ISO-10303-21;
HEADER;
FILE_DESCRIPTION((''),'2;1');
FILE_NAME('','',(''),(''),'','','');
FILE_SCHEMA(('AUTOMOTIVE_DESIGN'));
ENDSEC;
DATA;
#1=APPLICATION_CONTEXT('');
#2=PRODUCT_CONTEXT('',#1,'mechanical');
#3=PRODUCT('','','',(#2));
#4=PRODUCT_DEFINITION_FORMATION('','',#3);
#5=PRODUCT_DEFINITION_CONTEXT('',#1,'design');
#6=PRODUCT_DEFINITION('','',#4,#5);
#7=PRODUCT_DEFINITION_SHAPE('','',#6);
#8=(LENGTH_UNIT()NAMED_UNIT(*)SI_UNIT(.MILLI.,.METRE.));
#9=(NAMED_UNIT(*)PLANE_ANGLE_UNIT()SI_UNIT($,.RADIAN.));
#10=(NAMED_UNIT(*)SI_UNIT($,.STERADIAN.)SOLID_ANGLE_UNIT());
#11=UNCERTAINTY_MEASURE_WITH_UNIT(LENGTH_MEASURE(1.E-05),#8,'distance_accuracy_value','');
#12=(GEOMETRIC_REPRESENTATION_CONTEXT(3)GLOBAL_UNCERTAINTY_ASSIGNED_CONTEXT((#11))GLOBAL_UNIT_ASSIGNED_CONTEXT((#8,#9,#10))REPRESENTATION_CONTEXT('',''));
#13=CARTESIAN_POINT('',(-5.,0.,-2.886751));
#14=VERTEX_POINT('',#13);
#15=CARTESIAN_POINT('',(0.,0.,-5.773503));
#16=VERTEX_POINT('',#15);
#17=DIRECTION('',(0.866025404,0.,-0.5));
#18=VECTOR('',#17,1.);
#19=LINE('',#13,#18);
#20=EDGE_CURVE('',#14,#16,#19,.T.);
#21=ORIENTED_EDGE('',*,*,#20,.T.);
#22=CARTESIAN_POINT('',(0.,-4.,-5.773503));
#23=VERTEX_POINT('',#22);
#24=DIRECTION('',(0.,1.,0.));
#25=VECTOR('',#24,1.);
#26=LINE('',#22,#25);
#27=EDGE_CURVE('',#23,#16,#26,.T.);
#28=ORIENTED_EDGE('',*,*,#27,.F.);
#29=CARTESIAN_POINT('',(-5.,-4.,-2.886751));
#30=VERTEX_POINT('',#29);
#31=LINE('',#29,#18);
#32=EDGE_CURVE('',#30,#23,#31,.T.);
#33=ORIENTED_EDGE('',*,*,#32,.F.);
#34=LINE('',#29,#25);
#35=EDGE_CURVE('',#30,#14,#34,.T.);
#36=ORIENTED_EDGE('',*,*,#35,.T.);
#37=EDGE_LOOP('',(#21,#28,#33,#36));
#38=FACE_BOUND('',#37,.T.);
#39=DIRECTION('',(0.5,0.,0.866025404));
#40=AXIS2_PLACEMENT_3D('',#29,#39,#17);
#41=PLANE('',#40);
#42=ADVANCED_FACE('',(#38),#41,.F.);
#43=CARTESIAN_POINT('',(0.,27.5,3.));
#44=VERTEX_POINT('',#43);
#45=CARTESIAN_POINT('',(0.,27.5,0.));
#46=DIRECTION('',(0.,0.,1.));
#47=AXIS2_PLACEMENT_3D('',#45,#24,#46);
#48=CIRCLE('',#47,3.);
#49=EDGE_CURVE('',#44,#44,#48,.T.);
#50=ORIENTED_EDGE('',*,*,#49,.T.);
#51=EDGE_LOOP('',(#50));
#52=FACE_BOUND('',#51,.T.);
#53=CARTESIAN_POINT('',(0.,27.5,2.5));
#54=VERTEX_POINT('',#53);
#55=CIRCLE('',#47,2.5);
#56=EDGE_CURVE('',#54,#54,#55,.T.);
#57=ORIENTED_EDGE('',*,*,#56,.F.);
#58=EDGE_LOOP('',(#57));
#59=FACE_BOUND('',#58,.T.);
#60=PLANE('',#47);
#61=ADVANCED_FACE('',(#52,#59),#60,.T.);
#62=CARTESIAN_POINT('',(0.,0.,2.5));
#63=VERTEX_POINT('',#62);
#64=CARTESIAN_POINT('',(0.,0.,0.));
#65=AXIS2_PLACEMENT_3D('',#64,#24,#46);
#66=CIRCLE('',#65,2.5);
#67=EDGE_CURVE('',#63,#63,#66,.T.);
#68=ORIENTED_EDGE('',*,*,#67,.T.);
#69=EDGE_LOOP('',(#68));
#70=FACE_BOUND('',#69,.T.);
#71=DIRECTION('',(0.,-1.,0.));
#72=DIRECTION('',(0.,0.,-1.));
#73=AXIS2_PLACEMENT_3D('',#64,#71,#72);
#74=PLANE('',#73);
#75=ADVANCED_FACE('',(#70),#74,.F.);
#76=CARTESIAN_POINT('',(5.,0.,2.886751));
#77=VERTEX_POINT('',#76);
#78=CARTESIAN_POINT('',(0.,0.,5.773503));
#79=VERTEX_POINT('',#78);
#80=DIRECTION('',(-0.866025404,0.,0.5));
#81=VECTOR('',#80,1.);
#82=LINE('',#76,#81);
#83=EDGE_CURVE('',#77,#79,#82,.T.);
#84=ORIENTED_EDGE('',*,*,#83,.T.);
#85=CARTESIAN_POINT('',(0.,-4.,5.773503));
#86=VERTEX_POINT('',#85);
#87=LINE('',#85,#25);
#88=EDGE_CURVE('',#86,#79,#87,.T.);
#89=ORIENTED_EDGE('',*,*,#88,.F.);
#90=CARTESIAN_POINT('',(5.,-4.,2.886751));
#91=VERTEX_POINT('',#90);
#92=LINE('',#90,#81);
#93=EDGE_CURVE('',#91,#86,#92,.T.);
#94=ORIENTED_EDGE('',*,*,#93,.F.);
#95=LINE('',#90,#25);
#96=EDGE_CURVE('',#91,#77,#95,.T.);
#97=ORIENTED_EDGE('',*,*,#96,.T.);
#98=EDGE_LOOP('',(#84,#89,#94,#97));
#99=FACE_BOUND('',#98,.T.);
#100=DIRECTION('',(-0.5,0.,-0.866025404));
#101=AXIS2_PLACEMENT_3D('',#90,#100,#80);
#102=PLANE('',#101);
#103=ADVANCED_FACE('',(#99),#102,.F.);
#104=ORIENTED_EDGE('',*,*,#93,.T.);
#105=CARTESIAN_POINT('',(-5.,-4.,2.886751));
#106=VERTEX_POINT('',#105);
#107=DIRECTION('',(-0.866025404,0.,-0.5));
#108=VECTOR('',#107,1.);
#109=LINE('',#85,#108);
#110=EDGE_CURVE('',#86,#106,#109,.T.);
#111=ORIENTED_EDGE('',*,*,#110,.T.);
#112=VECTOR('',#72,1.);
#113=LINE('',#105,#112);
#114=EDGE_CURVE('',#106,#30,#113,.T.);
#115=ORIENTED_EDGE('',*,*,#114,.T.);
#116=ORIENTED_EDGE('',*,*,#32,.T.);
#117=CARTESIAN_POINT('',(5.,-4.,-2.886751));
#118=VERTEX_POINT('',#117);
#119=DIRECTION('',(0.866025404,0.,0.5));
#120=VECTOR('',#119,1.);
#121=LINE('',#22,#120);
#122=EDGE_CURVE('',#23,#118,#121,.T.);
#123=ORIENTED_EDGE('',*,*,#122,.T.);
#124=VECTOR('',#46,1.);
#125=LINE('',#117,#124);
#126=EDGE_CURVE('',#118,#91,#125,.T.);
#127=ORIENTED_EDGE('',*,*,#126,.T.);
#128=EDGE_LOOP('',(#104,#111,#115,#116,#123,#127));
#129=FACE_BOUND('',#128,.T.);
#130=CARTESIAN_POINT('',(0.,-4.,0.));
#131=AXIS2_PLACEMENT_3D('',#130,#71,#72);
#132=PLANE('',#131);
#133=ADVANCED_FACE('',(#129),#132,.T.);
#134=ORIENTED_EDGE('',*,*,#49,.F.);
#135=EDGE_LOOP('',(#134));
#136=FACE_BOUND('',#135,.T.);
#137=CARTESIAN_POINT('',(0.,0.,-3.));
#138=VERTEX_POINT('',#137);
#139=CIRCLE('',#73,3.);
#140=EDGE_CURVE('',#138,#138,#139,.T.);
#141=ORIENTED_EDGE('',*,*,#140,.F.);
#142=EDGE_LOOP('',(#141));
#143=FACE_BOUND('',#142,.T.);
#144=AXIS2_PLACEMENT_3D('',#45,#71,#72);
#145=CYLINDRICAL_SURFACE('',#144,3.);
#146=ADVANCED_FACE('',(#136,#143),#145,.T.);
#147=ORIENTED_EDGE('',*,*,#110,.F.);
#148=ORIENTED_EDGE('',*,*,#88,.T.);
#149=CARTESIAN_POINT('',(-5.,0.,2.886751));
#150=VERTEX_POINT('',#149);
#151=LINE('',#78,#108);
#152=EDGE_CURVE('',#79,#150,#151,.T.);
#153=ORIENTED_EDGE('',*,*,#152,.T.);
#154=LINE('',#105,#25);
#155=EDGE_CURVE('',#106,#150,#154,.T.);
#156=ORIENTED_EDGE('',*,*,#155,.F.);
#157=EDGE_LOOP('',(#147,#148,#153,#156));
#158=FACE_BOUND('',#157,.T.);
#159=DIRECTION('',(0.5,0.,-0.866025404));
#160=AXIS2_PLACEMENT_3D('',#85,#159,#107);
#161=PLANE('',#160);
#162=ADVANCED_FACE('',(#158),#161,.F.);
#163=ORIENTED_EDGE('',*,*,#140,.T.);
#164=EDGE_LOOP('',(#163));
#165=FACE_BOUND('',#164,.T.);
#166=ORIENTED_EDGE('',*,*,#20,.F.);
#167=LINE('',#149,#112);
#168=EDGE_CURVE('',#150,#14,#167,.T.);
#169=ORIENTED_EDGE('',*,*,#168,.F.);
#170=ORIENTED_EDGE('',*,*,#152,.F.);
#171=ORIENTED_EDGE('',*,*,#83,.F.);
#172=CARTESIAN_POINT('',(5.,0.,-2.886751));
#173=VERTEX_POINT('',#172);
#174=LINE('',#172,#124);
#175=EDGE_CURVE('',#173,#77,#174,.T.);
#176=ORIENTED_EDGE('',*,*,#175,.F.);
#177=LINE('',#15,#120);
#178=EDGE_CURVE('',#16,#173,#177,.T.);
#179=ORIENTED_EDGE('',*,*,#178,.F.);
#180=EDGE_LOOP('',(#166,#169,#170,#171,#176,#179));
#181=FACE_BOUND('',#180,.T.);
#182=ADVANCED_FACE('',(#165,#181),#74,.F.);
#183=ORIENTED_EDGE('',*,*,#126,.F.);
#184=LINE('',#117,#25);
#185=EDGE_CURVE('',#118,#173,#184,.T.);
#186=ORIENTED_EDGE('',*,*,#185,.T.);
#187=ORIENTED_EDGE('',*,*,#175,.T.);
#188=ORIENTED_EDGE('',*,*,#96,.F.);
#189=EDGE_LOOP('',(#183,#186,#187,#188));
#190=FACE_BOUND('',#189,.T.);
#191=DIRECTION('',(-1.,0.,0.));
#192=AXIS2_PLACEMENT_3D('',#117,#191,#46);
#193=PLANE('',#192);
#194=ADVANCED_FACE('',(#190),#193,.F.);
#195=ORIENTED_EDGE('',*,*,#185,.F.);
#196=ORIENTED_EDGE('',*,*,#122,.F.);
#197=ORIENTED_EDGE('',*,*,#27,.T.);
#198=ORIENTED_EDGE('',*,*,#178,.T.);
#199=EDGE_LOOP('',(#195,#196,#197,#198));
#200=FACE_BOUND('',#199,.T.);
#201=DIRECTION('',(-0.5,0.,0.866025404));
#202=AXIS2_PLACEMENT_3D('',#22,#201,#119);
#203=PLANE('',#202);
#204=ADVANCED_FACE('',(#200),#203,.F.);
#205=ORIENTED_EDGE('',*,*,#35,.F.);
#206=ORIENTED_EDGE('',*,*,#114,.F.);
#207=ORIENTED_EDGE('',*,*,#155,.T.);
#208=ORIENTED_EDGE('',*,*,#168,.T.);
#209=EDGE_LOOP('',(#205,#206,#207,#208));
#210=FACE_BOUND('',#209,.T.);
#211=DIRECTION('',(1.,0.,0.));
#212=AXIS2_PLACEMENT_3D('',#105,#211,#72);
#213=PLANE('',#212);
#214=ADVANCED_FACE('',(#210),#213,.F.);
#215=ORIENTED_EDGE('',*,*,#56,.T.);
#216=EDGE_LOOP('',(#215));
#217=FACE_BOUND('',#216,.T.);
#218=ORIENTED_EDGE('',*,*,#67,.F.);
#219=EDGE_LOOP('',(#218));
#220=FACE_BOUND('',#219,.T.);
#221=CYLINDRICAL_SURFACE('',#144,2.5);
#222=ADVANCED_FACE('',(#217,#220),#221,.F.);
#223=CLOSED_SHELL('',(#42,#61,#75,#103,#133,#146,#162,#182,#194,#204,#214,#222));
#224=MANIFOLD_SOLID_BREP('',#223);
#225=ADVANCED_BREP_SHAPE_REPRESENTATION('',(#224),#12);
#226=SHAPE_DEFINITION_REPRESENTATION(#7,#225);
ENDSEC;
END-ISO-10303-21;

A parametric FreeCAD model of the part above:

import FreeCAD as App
import Part
import Sketcher
Q = App.Units.Quantity

doc = App.newDocument("Part")
params = doc.addObject("Spreadsheet::Sheet", "Params")
for row, (alias, value) in enumerate([
    ("sketch1_diameter", "6 mm"),
    ("sketch1_diameter2", "5 mm"),
    ("pad1_length", "27.5 mm"),
    ("pad2_length", "4 mm"),
], start=1):
    params.set(f"A{row}", alias)
    params.set(f"B{row}", "=" + value)
    params.setAlias(f"B{row}", alias)

body = doc.addObject("PartDesign::Body", "Body")

# Sketch on XZ plane
sketch1 = body.newObject("Sketcher::SketchObject", "Sketch")
sketch1.AttachmentSupport = (doc.getObject("XZ_Plane"), [""])
sketch1.MapMode = "FlatFace"
sketch1.addGeometry(Part.Circle(App.Vector(0, 0, 0), App.Vector(0, 0, 1), 3), False)
sketch1.addGeometry(Part.Circle(App.Vector(0, 0, 0), App.Vector(0, 0, 1), 2.5), False)
sketch1.addConstraint(Sketcher.Constraint("Coincident", 0, 3, -1, 1))
sketch1.addConstraint(Sketcher.Constraint("Coincident", 1, 3, -1, 1))
sketch1.addConstraint(Sketcher.Constraint("Diameter", 0, Q("6 mm")))
sketch1.addConstraint(Sketcher.Constraint("Diameter", 1, Q("5 mm")))
sketch1.setExpression("Constraints[2]", "Params.sketch1_diameter")
sketch1.setExpression("Constraints[3]", "Params.sketch1_diameter2")
pad1 = body.newObject("PartDesign::Pad", "Pad")
pad1.Profile = sketch1
pad1.setExpression("Length", "Params.pad1_length")
pad1.Reversed = True

# Sketch on XZ plane
sketch2 = body.newObject("Sketcher::SketchObject", "Sketch001")
sketch2.AttachmentSupport = (doc.getObject("XZ_Plane"), [""])
sketch2.MapMode = "FlatFace"
sketch2.addGeometry(Part.LineSegment(App.Vector(0, 6, 0), App.Vector(-5, 3, 0)), False)
sketch2.addGeometry(Part.LineSegment(App.Vector(-5, 3, 0), App.Vector(-5, -3, 0)), False)
sketch2.addGeometry(Part.LineSegment(App.Vector(-5, -3, 0), App.Vector(0, -6, 0)), False)
sketch2.addGeometry(Part.LineSegment(App.Vector(0, -6, 0), App.Vector(5, -3, 0)), False)
sketch2.addGeometry(Part.LineSegment(App.Vector(5, -3, 0), App.Vector(5, 3, 0)), False)
sketch2.addGeometry(Part.LineSegment(App.Vector(5, 3, 0), App.Vector(0, 6, 0)), False)
sketch2.addConstraint(Sketcher.Constraint("Coincident", 0, 2, 1, 1))
sketch2.addConstraint(Sketcher.Constraint("Coincident", 1, 2, 2, 1))
sketch2.addConstraint(Sketcher.Constraint("Coincident", 2, 2, 3, 1))
sketch2.addConstraint(Sketcher.Constraint("Coincident", 3, 2, 4, 1))
sketch2.addConstraint(Sketcher.Constraint("Coincident", 4, 2, 5, 1))
sketch2.addConstraint(Sketcher.Constraint("Coincident", 5, 2, 0, 1))
sketch2.addConstraint(Sketcher.Constraint("Vertical", 1))
sketch2.addConstraint(Sketcher.Constraint("Vertical", 4))
sketch2.addConstraint(Sketcher.Constraint("Symmetric", 0, 2, 3, 2, -1, 1))
sketch2.addConstraint(Sketcher.Constraint("Symmetric", 2, 2, 5, 2, -1, 1))
sketch2.addConstraint(Sketcher.Constraint("PointOnObject", 2, 2, -2))
sketch2.addConstraint(Sketcher.Constraint("Parallel", 2, 5))
sketch2.addConstraint(Sketcher.Constraint("Horizontal", 1, 2, 3, 2))
sketch2.addConstraint(Sketcher.Constraint("Angle", 0, Q("-150 deg")))
sketch2.addConstraint(Sketcher.Constraint("DistanceX", 0, 2, -1, 1, Q("5 mm")))
sketch2.addConstraint(Sketcher.Constraint("DistanceY", 1, 2, 1, 1, Q("5.773503 mm")))
pad2 = body.newObject("PartDesign::Pad", "Pad001")
pad2.Profile = sketch2
pad2.setExpression("Length", "Params.pad2_length")

doc.recompute()
